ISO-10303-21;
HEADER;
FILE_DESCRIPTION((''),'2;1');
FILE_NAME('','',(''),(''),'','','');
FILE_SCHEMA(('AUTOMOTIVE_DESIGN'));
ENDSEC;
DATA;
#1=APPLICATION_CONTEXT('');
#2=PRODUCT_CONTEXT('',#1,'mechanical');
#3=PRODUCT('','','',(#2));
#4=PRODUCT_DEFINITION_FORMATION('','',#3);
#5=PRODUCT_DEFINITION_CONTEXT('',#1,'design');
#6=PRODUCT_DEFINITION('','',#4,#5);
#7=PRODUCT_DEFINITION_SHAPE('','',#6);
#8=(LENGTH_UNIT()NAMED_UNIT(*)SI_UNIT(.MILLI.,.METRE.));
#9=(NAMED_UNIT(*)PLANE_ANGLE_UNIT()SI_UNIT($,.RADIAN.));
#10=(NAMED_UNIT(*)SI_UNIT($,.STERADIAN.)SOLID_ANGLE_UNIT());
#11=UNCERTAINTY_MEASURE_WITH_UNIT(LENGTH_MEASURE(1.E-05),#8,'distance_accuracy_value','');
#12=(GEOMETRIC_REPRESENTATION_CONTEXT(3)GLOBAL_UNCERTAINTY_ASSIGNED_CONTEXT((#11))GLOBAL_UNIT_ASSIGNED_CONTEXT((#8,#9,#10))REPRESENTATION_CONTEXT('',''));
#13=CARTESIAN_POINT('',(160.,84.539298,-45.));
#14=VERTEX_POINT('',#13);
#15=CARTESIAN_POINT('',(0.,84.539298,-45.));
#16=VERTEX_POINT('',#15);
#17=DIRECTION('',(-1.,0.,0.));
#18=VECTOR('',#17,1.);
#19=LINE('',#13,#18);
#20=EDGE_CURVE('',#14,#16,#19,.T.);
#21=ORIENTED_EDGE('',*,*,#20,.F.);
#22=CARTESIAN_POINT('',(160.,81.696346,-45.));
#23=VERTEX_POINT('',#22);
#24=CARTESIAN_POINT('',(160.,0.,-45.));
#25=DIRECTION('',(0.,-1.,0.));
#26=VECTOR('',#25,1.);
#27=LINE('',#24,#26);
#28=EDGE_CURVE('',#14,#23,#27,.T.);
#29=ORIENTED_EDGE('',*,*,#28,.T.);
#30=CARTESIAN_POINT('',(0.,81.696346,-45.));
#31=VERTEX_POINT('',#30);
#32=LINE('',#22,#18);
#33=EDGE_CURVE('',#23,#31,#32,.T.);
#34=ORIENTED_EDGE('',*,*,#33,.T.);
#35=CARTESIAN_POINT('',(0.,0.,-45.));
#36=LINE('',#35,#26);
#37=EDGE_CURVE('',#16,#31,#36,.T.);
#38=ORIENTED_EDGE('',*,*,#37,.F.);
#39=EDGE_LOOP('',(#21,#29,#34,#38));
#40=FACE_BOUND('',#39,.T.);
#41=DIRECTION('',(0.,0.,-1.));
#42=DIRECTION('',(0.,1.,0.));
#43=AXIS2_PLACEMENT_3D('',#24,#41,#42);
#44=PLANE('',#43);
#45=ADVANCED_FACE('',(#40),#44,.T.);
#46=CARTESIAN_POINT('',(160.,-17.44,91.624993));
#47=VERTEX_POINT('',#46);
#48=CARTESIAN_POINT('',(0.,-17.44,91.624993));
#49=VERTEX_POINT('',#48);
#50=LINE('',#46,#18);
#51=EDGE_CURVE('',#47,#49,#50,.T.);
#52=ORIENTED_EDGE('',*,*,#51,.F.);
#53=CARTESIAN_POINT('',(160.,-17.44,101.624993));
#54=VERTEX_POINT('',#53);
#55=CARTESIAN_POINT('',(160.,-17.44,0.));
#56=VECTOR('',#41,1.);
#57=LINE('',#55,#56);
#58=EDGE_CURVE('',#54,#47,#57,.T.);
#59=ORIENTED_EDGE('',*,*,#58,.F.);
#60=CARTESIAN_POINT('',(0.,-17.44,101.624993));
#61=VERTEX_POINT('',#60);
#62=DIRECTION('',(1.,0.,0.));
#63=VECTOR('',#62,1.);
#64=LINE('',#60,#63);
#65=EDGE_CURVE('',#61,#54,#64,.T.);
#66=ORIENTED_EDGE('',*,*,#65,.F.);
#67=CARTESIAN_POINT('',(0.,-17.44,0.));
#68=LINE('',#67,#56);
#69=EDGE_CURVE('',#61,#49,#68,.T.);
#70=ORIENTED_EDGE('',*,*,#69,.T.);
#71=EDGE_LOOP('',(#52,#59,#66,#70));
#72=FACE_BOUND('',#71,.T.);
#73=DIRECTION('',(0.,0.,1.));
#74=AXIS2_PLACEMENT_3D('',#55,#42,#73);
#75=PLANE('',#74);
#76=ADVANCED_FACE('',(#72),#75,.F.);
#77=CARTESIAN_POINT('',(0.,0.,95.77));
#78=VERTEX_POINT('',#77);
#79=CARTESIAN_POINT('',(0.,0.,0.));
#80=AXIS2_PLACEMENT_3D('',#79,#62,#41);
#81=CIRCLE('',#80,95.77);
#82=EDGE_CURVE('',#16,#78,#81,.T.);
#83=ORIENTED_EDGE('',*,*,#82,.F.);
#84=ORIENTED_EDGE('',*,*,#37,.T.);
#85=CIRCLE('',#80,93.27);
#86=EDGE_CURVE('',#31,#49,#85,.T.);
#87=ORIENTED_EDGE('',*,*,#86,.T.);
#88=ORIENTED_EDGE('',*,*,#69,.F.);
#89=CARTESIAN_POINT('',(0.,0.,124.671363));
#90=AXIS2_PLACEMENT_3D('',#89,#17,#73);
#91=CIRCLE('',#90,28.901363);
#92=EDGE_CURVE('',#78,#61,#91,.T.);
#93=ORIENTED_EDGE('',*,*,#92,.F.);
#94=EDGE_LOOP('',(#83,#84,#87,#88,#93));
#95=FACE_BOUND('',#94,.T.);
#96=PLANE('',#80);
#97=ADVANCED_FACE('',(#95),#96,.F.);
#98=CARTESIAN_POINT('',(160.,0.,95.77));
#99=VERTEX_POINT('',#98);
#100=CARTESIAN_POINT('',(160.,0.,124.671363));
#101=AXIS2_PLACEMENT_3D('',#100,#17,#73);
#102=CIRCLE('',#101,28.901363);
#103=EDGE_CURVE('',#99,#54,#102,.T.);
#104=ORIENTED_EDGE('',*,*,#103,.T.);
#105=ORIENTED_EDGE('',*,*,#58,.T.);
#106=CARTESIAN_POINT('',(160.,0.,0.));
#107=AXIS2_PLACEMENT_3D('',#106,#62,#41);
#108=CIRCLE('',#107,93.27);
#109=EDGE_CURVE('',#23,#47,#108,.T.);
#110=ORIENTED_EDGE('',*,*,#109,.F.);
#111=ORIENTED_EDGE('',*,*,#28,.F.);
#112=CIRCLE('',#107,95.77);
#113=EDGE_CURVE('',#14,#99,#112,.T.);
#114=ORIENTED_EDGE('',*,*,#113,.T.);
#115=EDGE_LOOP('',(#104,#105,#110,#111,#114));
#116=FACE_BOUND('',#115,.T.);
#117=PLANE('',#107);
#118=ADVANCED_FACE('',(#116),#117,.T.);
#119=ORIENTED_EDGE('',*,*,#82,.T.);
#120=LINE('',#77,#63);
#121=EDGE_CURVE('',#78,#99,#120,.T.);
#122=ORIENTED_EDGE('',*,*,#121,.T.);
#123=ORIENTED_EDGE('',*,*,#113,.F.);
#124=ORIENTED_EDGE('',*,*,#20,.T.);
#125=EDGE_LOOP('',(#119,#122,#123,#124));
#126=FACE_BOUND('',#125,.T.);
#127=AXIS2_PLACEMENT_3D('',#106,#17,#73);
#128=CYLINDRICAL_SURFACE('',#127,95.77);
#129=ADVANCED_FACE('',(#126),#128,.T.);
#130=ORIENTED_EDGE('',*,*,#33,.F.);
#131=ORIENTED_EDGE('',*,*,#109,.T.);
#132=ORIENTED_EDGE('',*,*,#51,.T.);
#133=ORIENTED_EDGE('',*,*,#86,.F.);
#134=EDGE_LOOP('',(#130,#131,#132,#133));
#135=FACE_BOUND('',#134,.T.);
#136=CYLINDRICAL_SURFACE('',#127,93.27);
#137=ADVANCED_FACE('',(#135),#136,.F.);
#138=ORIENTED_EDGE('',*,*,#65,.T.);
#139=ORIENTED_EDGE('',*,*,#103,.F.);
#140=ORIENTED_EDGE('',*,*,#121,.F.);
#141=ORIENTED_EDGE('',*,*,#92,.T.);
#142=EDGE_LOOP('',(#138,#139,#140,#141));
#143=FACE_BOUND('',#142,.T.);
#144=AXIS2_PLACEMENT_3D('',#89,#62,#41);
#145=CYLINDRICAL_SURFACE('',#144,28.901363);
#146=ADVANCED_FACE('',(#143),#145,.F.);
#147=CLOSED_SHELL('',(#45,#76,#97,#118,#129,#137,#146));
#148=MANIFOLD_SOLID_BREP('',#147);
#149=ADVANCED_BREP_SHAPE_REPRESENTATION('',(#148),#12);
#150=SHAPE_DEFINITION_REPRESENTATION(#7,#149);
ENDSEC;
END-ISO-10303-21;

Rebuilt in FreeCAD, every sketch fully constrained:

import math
import FreeCAD as App
import Part
import Sketcher

V = App.Vector

doc = App.newDocument("Part")
body = doc.addObject("PartDesign::Body", "Body")

# Sketch on YZ plane
sketch1 = body.newObject("Sketcher::SketchObject", "Sketch")
sketch1.AttachmentSupport = (doc.getObject("YZ_Plane"), [""])
sketch1.MapMode = "FlatFace"
sketch1.addGeometry([
    Part.ArcOfCircle(Part.Circle(V(0, 0, 0), V(0, 0, 1), 95.8), math.radians(-28), math.radians(100)),
    Part.LineSegment(V(-17.4, 94.2, 0), V(-17.4, 91.6, 0)),
    Part.ArcOfCircle(Part.Circle(V(0, 0, 0), V(0, 0, 1), 93.3), math.radians(-29), math.radians(101)),
    Part.LineSegment(V(81.7, -45, 0), V(84.5, -45, 0)),
], False)
sketch1.addConstraint([
    Sketcher.Constraint("Coincident", 0, 2, 1, 1),
    Sketcher.Constraint("Coincident", 1, 2, 2, 2),
    Sketcher.Constraint("Coincident", 2, 1, 3, 1),
    Sketcher.Constraint("Coincident", 3, 2, 0, 1),
    Sketcher.Constraint("Vertical", 1),
    Sketcher.Constraint("Horizontal", 3),
    Sketcher.Constraint("Coincident", 0, 3, -1, 1),
    Sketcher.Constraint("Coincident", 2, 3, -1, 1),
    Sketcher.Constraint("Radius", 0, 95.77),
    Sketcher.Constraint("Radius", 2, 93.27),
    Sketcher.Constraint("DistanceY", 2, 1, -1, 1, 45.0),
    Sketcher.Constraint("DistanceX", 0, 2, -1, 1, 17.44),
])
pad1 = body.newObject("PartDesign::Pad", "Pad")
pad1.Profile = sketch1
pad1.Length = 160

# Sketch on YZ plane
sketch2 = body.newObject("Sketcher::SketchObject", "Sketch001")
sketch2.AttachmentSupport = (doc.getObject("YZ_Plane"), [""])
sketch2.MapMode = "FlatFace"
sketch2.addGeometry([
    Part.LineSegment(V(-17, 102, 0), V(-17, 94, 0)),
    Part.ArcOfCircle(Part.Circle(V(0, 0, 0), V(0, 0, 1), 96), math.radians(90), math.radians(100.49)),
    Part.ArcOfCircle(Part.Circle(V(0, 125, 0), V(0, 0, 1), 29), math.radians(-127), math.radians(-90)),
], False)
sketch2.addConstraint([
    Sketcher.Constraint("Coincident", 0, 2, 1, 2),
    Sketcher.Constraint("Tangent", 1, 1, 2, 2),
    Sketcher.Constraint("Coincident", 2, 1, 0, 1),
    Sketcher.Constraint("Vertical", 0),
    Sketcher.Constraint("Coincident", 1, 3, -1, 1),
    Sketcher.Constraint("PointOnObject", 2, 3, -2),
    Sketcher.Constraint("Radius", 1, 95.77),
    Sketcher.Constraint("DistanceX", 0, 2, -1, 1, 17.44),
    Sketcher.Constraint("Radius", 2, 28.901363),
])
pad2 = body.newObject("PartDesign::Pad", "Pad001")
pad2.Profile = sketch2
pad2.Length = 160

doc.recompute()
